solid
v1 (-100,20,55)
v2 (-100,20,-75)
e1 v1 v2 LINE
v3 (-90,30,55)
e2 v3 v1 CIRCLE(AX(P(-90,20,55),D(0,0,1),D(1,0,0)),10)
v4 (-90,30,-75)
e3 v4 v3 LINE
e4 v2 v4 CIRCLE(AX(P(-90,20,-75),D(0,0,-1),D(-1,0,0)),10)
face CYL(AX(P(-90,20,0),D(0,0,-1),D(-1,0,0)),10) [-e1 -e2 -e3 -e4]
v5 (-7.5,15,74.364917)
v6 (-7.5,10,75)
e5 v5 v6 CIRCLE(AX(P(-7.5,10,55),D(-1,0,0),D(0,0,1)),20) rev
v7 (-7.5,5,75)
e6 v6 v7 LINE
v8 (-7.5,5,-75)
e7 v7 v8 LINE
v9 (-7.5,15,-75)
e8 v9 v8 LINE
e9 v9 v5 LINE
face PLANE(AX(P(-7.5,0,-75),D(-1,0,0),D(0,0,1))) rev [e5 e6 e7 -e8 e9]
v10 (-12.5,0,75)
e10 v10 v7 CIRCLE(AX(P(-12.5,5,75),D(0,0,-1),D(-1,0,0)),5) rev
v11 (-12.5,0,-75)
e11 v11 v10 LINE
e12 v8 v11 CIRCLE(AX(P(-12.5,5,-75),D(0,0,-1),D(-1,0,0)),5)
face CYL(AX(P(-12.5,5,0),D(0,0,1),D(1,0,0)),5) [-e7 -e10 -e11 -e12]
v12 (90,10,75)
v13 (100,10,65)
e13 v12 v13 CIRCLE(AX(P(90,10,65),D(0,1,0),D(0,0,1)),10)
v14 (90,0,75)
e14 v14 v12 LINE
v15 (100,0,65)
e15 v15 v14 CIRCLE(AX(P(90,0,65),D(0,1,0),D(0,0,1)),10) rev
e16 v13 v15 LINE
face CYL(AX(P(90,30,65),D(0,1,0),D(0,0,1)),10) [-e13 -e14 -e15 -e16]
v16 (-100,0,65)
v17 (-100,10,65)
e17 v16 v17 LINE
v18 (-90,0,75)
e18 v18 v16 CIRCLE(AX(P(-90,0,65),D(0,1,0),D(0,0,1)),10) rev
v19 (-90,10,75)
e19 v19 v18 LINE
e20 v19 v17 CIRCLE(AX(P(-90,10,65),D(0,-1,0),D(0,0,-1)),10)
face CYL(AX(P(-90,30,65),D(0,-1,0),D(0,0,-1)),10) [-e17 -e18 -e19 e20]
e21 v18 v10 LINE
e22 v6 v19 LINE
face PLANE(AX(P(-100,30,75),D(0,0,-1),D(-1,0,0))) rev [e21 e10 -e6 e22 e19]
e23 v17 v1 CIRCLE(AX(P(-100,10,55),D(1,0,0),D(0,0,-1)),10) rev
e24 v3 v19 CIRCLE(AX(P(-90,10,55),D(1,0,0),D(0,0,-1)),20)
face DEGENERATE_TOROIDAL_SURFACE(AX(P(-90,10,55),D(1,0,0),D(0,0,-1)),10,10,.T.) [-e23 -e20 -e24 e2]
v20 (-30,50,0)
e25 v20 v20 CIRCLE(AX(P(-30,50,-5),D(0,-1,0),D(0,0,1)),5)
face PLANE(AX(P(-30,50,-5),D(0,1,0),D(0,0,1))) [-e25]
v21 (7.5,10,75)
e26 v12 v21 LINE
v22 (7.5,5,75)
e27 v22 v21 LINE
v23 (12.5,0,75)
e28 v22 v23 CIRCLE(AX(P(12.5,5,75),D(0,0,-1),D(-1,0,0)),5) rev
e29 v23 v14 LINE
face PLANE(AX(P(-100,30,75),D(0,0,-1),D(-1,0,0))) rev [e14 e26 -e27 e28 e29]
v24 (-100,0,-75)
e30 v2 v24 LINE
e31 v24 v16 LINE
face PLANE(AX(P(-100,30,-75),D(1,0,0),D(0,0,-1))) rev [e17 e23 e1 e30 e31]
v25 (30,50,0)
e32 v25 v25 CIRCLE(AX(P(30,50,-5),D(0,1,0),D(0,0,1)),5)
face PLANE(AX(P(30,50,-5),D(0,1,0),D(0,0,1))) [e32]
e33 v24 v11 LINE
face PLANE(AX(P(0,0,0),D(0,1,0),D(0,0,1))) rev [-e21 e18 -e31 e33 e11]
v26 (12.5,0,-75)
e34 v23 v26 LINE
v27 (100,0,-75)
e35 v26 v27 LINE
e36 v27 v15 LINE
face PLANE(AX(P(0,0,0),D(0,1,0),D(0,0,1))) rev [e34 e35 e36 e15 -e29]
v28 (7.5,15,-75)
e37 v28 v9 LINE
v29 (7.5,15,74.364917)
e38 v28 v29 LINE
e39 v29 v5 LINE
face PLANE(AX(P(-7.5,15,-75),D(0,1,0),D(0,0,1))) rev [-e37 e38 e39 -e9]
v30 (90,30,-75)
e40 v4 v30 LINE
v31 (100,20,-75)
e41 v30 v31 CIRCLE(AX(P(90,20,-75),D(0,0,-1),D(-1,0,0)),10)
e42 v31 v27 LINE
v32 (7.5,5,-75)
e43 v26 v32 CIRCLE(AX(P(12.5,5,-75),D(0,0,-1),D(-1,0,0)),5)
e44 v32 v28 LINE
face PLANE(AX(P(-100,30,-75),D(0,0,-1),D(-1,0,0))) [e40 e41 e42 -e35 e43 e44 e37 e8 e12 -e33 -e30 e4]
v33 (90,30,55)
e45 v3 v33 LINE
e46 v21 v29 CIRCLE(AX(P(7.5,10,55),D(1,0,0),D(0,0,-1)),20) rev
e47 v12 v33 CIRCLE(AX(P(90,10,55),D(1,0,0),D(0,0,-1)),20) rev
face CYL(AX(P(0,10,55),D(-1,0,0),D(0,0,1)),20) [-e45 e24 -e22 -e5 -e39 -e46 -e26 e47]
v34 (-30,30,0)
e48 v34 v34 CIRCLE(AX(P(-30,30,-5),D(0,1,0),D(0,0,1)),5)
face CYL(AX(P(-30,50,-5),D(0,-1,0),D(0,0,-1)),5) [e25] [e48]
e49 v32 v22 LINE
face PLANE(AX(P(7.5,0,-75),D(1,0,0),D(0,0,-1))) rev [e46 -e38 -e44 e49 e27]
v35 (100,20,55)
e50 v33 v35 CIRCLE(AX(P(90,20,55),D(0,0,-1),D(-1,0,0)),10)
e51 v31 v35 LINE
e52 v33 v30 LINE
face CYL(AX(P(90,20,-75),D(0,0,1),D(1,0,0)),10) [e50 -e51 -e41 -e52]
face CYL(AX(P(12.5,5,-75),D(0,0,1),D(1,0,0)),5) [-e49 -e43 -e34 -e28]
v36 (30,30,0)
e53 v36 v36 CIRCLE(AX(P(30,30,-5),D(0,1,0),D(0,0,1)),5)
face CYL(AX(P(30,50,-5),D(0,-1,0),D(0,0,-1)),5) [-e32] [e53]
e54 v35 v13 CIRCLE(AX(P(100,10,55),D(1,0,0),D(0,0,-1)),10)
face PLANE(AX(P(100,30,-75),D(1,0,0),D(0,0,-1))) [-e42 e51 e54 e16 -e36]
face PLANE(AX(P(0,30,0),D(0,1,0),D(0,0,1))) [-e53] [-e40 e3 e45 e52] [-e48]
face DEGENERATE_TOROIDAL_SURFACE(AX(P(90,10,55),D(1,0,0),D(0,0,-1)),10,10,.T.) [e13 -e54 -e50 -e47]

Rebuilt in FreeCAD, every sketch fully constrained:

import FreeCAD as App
import Part
import Sketcher

V = App.Vector
Q = App.Units.Quantity


def edges_at(feature, points):
    """Names of the edges that pass closest to the given points."""
    edges = feature.Shape.Edges
    near = lambda p: min(range(len(edges)), key=lambda i: edges[i].distToShape(Part.Vertex(*p))[0])
    return sorted({f"Edge{near(p) + 1}" for p in points})

doc = App.newDocument("Part")
body = doc.addObject("PartDesign::Body", "Body")

# Sketch on XZ plane
sketch1 = body.newObject("Sketcher::SketchObject", "Sketch")
sketch1.AttachmentSupport = (doc.getObject("XZ_Plane"), [""])
sketch1.MapMode = "FlatFace"
sketch1.addGeometry(Part.LineSegment(V(-100, -75, 0), V(-100, 75, 0)), False)
sketch1.addGeometry(Part.LineSegment(V(-100, 75, 0), V(100, 75, 0)), False)
sketch1.addGeometry(Part.LineSegment(V(100, 75, 0), V(100, -75, 0)), False)
sketch1.addGeometry(Part.LineSegment(V(100, -75, 0), V(-100, -75, 0)), False)
sketch1.addConstraint(Sketcher.Constraint("Coincident", 0, 2, 1, 1))
sketch1.addConstraint(Sketcher.Constraint("Coincident", 1, 2, 2, 1))
sketch1.addConstraint(Sketcher.Constraint("Coincident", 2, 2, 3, 1))
sketch1.addConstraint(Sketcher.Constraint("Coincident", 3, 2, 0, 1))
sketch1.addConstraint(Sketcher.Constraint("Vertical", 0))
sketch1.addConstraint(Sketcher.Constraint("Horizontal", 1))
sketch1.addConstraint(Sketcher.Constraint("Vertical", 2))
sketch1.addConstraint(Sketcher.Constraint("Horizontal", 3))
sketch1.addConstraint(Sketcher.Constraint("Symmetric", 0, 2, 2, 2, -1, 1))
sketch1.addConstraint(Sketcher.Constraint("DistanceX", 1, 1, 1, 2, Q("200 mm")))
sketch1.addConstraint(Sketcher.Constraint("DistanceY", 0, 1, 0, 2, Q("150 mm")))
pad1 = body.newObject("PartDesign::Pad", "Pad")
pad1.Profile = sketch1
pad1.Length = 30
pad1.Reversed = True
doc.recompute()

fillet = body.newObject("PartDesign::Fillet", "Fillet")
fillet.Base = (pad1, edges_at(pad1, [(0, 30, 75)]))
fillet.Radius = 20
doc.recompute()

fillet2 = body.newObject("PartDesign::Fillet", "Fillet001")
fillet2.Base = (fillet, edges_at(fillet, [
    (100, 30, -10),
    (100, 5, 75),
    (100, 24.142, 69.142),
    (-100, 5, 75),
    (-100, 24.142, 69.142),
    (-100, 30, -10),
]))
fillet2.Radius = 10

# Sketch on XY plane
sketch2 = body.newObject("Sketcher::SketchObject", "Sketch001")
sketch2.AttachmentSupport = (doc.getObject("XY_Plane"), [""])
sketch2.MapMode = "FlatFace"
sketch2.AttachmentOffset = App.Placement(V(0, 0, 75), App.Rotation())
sketch2.addGeometry(Part.LineSegment(V(-8, 15, 0), V(-8, 0, 0)), False)
sketch2.addGeometry(Part.LineSegment(V(-8, 0, 0), V(8, 0, 0)), False)
sketch2.addGeometry(Part.LineSegment(V(8, 0, 0), V(8, 15, 0)), False)
sketch2.addGeometry(Part.LineSegment(V(8, 15, 0), V(-8, 15, 0)), False)
sketch2.addConstraint(Sketcher.Constraint("Coincident", 0, 2, 1, 1))
sketch2.addConstraint(Sketcher.Constraint("Coincident", 1, 2, 2, 1))
sketch2.addConstraint(Sketcher.Constraint("Coincident", 2, 2, 3, 1))
sketch2.addConstraint(Sketcher.Constraint("Coincident", 3, 2, 0, 1))
sketch2.addConstraint(Sketcher.Constraint("Vertical", 0))
sketch2.addConstraint(Sketcher.Constraint("Horizontal", 1))
sketch2.addConstraint(Sketcher.Constraint("Vertical", 2))
sketch2.addConstraint(Sketcher.Constraint("Horizontal", 3))
sketch2.addConstraint(Sketcher.Constraint("Symmetric", 0, 2, 1, 2, -1, 1))
sketch2.addConstraint(Sketcher.Constraint("Equal", 3, 0))
sketch2.addConstraint(Sketcher.Constraint("DistanceX", 1, 1, 1, 2, Q("15 mm")))
pocket1 = body.newObject("PartDesign::Pocket", "Pocket")
pocket1.Profile = sketch2
pocket1.Type = "ThroughAll"
doc.recompute()

fillet3 = body.newObject("PartDesign::Fillet", "Fillet002")
fillet3.Base = (pocket1, edges_at(pocket1, [(-7.5, 0, 0), (7.5, 0, 0)]))
fillet3.Radius = 5

# Sketch on XZ plane
sketch3 = body.newObject("Sketcher::SketchObject", "Sketch002")
sketch3.AttachmentSupport = (doc.getObject("XZ_Plane"), [""])
sketch3.MapMode = "FlatFace"
sketch3.AttachmentOffset = App.Placement(V(0, 0, -30), App.Rotation())
sketch3.addGeometry(Part.Circle(V(30, -5, 0), V(0, 0, 1), 5), False)
sketch3.addConstraint(Sketcher.Constraint("Diameter", 0, Q("10 mm")))
sketch3.addConstraint(Sketcher.Constraint("DistanceX", -1, 1, 0, 3, Q("30 mm")))
sketch3.addConstraint(Sketcher.Constraint("DistanceY", 0, 3, -1, 1, Q("5 mm")))
pad2 = body.newObject("PartDesign::Pad", "Pad001")
pad2.Profile = sketch3
pad2.Length = 20
pad2.Reversed = True
doc.recompute()

mirrored = body.newObject("PartDesign::Mirrored", "Mirrored")
mirrored.Originals = [pad2]
mirrored.MirrorPlane = (doc.getObject("YZ_Plane"), [""])
body.Tip = mirrored

doc.recompute()
